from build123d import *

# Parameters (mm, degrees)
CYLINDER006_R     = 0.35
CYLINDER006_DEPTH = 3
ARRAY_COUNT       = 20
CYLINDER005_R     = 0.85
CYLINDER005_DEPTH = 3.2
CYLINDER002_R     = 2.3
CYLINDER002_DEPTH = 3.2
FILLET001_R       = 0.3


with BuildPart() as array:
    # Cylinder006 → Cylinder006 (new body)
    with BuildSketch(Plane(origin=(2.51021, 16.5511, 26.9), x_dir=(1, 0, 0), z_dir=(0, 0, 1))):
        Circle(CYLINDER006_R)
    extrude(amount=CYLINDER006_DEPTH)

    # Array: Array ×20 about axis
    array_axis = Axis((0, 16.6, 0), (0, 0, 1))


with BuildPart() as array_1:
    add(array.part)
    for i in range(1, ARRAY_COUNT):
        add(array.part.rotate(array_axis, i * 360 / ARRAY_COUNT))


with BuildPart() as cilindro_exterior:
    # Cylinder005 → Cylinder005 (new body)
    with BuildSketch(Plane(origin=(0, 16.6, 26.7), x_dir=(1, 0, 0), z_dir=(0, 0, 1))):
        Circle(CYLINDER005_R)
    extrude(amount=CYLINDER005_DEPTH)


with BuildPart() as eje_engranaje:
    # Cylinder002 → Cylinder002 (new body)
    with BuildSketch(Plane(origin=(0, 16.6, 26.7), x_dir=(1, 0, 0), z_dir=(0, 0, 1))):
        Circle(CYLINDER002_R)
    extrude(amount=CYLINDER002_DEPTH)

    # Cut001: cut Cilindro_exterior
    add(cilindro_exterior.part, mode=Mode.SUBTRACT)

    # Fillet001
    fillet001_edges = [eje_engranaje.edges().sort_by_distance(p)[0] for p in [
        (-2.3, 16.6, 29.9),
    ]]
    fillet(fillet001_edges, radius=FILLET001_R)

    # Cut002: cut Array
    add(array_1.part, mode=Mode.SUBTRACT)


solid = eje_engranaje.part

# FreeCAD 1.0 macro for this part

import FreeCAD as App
import Part
import Sketcher
from FreeCAD import Vector


def edges_at(feature, points):
    """Names of the edges that pass closest to the given points."""
    edges = feature.Shape.Edges
    near = lambda p: min(range(len(edges)), key=lambda i: edges[i].distToShape(Part.Vertex(*p))[0])
    return sorted({f"Edge{near(p) + 1}" for p in points})

doc = App.newDocument("Part")
body = doc.addObject("PartDesign::Body", "Body")

# Sketch on XY plane
sketch1 = doc.addObject("Sketcher::SketchObject", "Sketch")
body.addObject(sketch1)
sketch1.AttachmentSupport = (doc.XY_Plane, [""])
sketch1.MapMode = "FlatFace"
sketch1.AttachmentOffset = App.Placement(Vector(0, 0, 26.9), App.Rotation())
sketch1.addGeometry(Part.Circle(Vector(2.51, 16.55, 0), Vector(0, 0, 1), 0.35), False)
sketch1.addConstraint([
    Sketcher.Constraint("Diameter", 0, 0.7),
    Sketcher.Constraint("DistanceY", -1, 1, 0, 3, 16.5511),
    Sketcher.Constraint("DistanceX", -1, 1, 0, 3, 2.51021),
])
pad1 = doc.addObject("PartDesign::Pad", "Pad")
body.addObject(pad1)
pad1.Profile = sketch1
pad1.Length = 3
body2 = doc.addObject("PartDesign::Body", "Body001")
body2.AllowCompound = True
doc.recompute()

body2.BaseFeature = body
doc.recompute()

body3 = doc.addObject("PartDesign::Body", "Body002")
body3.BaseFeature = body
body3.Placement = App.Placement(Vector(5.129682, 0.812462, 0), App.Rotation(Vector(0, 0, 1), 18))
boolean = doc.addObject("PartDesign::Boolean", "Boolean")
body2.addObject(boolean)
boolean.Type = "Fuse"
boolean.addObjects([body3])
doc.recompute()

body4 = doc.addObject("PartDesign::Body", "Body003")
body4.BaseFeature = body
body4.Placement = App.Placement(Vector(9.757235, 3.170318, 0), App.Rotation(Vector(0, 0, 1), 36))
boolean2 = doc.addObject("PartDesign::Boolean", "Boolean001")
body2.addObject(boolean2)
boolean2.Type = "Fuse"
boolean2.addObjects([body4])
doc.recompute()

body5 = doc.addObject("PartDesign::Body", "Body004")
body5.BaseFeature = body
body5.Placement = App.Placement(Vector(13.429682, 6.842765, 0), App.Rotation(Vector(0, 0, 1), 54))
boolean3 = doc.addObject("PartDesign::Boolean", "Boolean002")
body2.addObject(boolean3)
boolean3.Type = "Fuse"
boolean3.addObjects([body5])
doc.recompute()

body6 = doc.addObject("PartDesign::Body", "Body005")
body6.BaseFeature = body
body6.Placement = App.Placement(Vector(15.787538, 11.470318, 0), App.Rotation(Vector(0, 0, 1), 72))
boolean4 = doc.addObject("PartDesign::Boolean", "Boolean003")
body2.addObject(boolean4)
boolean4.Type = "Fuse"
boolean4.addObjects([body6])
doc.recompute()

body7 = doc.addObject("PartDesign::Body", "Body006")
body7.BaseFeature = body
body7.Placement = App.Placement(Vector(16.6, 16.6, 0), App.Rotation(Vector(0, 0, 1), 90))
boolean5 = doc.addObject("PartDesign::Boolean", "Boolean004")
body2.addObject(boolean5)
boolean5.Type = "Fuse"
boolean5.addObjects([body7])
doc.recompute()

body8 = doc.addObject("PartDesign::Body", "Body007")
body8.BaseFeature = body
body8.Placement = App.Placement(Vector(15.787538, 21.729682, 0), App.Rotation(Vector(0, 0, 1), 108))
boolean6 = doc.addObject("PartDesign::Boolean", "Boolean005")
body2.addObject(boolean6)
boolean6.Type = "Fuse"
boolean6.addObjects([body8])
doc.recompute()

body9 = doc.addObject("PartDesign::Body", "Body008")
body9.BaseFeature = body
body9.Placement = App.Placement(Vector(13.429682, 26.357235, 0), App.Rotation(Vector(0, 0, 1), 126))
boolean7 = doc.addObject("PartDesign::Boolean", "Boolean006")
body2.addObject(boolean7)
boolean7.Type = "Fuse"
boolean7.addObjects([body9])
doc.recompute()

body10 = doc.addObject("PartDesign::Body", "Body009")
body10.BaseFeature = body
body10.Placement = App.Placement(Vector(9.757235, 30.029682, 0), App.Rotation(Vector(0, 0, 1), 144))
boolean8 = doc.addObject("PartDesign::Boolean", "Boolean007")
body2.addObject(boolean8)
boolean8.Type = "Fuse"
boolean8.addObjects([body10])
doc.recompute()

body11 = doc.addObject("PartDesign::Body", "Body010")
body11.BaseFeature = body
body11.Placement = App.Placement(Vector(5.129682, 32.387538, 0), App.Rotation(Vector(0, 0, 1), 162))
boolean9 = doc.addObject("PartDesign::Boolean", "Boolean008")
body2.addObject(boolean9)
boolean9.Type = "Fuse"
boolean9.addObjects([body11])
doc.recompute()

body12 = doc.addObject("PartDesign::Body", "Body011")
body12.BaseFeature = body
body12.Placement = App.Placement(Vector(0, 33.2, 0), App.Rotation(Vector(0, 0, 1), 180))
boolean10 = doc.addObject("PartDesign::Boolean", "Boolean009")
body2.addObject(boolean10)
boolean10.Type = "Fuse"
boolean10.addObjects([body12])
doc.recompute()

body13 = doc.addObject("PartDesign::Body", "Body012")
body13.BaseFeature = body
body13.Placement = App.Placement(Vector(-5.129682, 32.387538, 0), App.Rotation(Vector(0, 0, 1), 198))
boolean11 = doc.addObject("PartDesign::Boolean", "Boolean010")
body2.addObject(boolean11)
boolean11.Type = "Fuse"
boolean11.addObjects([body13])
doc.recompute()

body14 = doc.addObject("PartDesign::Body", "Body013")
body14.BaseFeature = body
body14.Placement = App.Placement(Vector(-9.757235, 30.029682, 0), App.Rotation(Vector(0, 0, 1), 216))
boolean12 = doc.addObject("PartDesign::Boolean", "Boolean011")
body2.addObject(boolean12)
boolean12.Type = "Fuse"
boolean12.addObjects([body14])
doc.recompute()

body15 = doc.addObject("PartDesign::Body", "Body014")
body15.BaseFeature = body
body15.Placement = App.Placement(Vector(-13.429682, 26.357235, 0), App.Rotation(Vector(0, 0, 1), 234))
boolean13 = doc.addObject("PartDesign::Boolean", "Boolean012")
body2.addObject(boolean13)
boolean13.Type = "Fuse"
boolean13.addObjects([body15])
doc.recompute()

body16 = doc.addObject("PartDesign::Body", "Body015")
body16.BaseFeature = body
body16.Placement = App.Placement(Vector(-15.787538, 21.729682, 0), App.Rotation(Vector(0, 0, 1), 252))
boolean14 = doc.addObject("PartDesign::Boolean", "Boolean013")
body2.addObject(boolean14)
boolean14.Type = "Fuse"
boolean14.addObjects([body16])
doc.recompute()

body17 = doc.addObject("PartDesign::Body", "Body016")
body17.BaseFeature = body
body17.Placement = App.Placement(Vector(-16.6, 16.6, 0), App.Rotation(Vector(0, 0, 1), 270))
boolean15 = doc.addObject("PartDesign::Boolean", "Boolean014")
body2.addObject(boolean15)
boolean15.Type = "Fuse"
boolean15.addObjects([body17])
doc.recompute()

body18 = doc.addObject("PartDesign::Body", "Body017")
body18.BaseFeature = body
body18.Placement = App.Placement(Vector(-15.787538, 11.470318, 0), App.Rotation(Vector(0, 0, 1), 288))
boolean16 = doc.addObject("PartDesign::Boolean", "Boolean015")
body2.addObject(boolean16)
boolean16.Type = "Fuse"
boolean16.addObjects([body18])
doc.recompute()

body19 = doc.addObject("PartDesign::Body", "Body018")
body19.BaseFeature = body
body19.Placement = App.Placement(Vector(-13.429682, 6.842765, 0), App.Rotation(Vector(0, 0, 1), 306))
boolean17 = doc.addObject("PartDesign::Boolean", "Boolean016")
body2.addObject(boolean17)
boolean17.Type = "Fuse"
boolean17.addObjects([body19])
doc.recompute()

body20 = doc.addObject("PartDesign::Body", "Body019")
body20.BaseFeature = body
body20.Placement = App.Placement(Vector(-9.757235, 3.170318, 0), App.Rotation(Vector(0, 0, 1), 324))
boolean18 = doc.addObject("PartDesign::Boolean", "Boolean017")
body2.addObject(boolean18)
boolean18.Type = "Fuse"
boolean18.addObjects([body20])
doc.recompute()

body.Placement = App.Placement(Vector(-5.129682, 0.812462, 0), App.Rotation(Vector(0, 0, 1), 342))
boolean19 = doc.addObject("PartDesign::Boolean", "Boolean018")
body2.addObject(boolean19)
boolean19.Type = "Fuse"
boolean19.addObjects([body])
body21 = doc.addObject("PartDesign::Body", "Body020")

# Sketch on XY plane
sketch2 = doc.addObject("Sketcher::SketchObject", "Sketch001")
body21.addObject(sketch2)
sketch2.AttachmentSupport = (doc.getObject("XY_Plane020"), [""])
sketch2.MapMode = "FlatFace"
sketch2.AttachmentOffset = App.Placement(Vector(0, 0, 26.7), App.Rotation())
sketch2.addGeometry(Part.Circle(Vector(0, 16.6, 0), Vector(0, 0, 1), 0.8), False)
sketch2.addConstraint([
    Sketcher.Constraint("PointOnObject", 0, 3, -2),
    Sketcher.Constraint("Diameter", 0, 1.7),
    Sketcher.Constraint("DistanceY", -1, 1, 0, 3, 16.6),
])
pad2 = doc.addObject("PartDesign::Pad", "Pad001")
body21.addObject(pad2)
pad2.Profile = sketch2
pad2.Length = 3.2
body22 = doc.addObject("PartDesign::Body", "Body021")

# Sketch on XY plane
sketch3 = doc.addObject("Sketcher::SketchObject", "Sketch002")
body22.addObject(sketch3)
sketch3.AttachmentSupport = (doc.getObject("XY_Plane021"), [""])
sketch3.MapMode = "FlatFace"
sketch3.AttachmentOffset = App.Placement(Vector(0, 0, 26.7), App.Rotation())
sketch3.addGeometry(Part.Circle(Vector(0, 16.6, 0), Vector(0, 0, 1), 2.3), False)
sketch3.addConstraint([
    Sketcher.Constraint("PointOnObject", 0, 3, -2),
    Sketcher.Constraint("Diameter", 0, 4.6),
    Sketcher.Constraint("DistanceY", -1, 1, 0, 3, 16.6),
])
pad3 = doc.addObject("PartDesign::Pad", "Pad002")
body22.addObject(pad3)
pad3.Profile = sketch3
pad3.Length = 3.2
doc.recompute()

boolean20 = doc.addObject("PartDesign::Boolean", "Boolean019")
body22.addObject(boolean20)
boolean20.Type = "Cut"
boolean20.addObjects([body21])
doc.recompute()

fillet = doc.addObject("PartDesign::Fillet", "Fillet")
body22.addObject(fillet)
fillet.Base = (boolean20, edges_at(boolean20, [(-2.3, 16.6, 29.9)]))
fillet.Radius = 0.3
doc.recompute()

boolean21 = doc.addObject("PartDesign::Boolean", "Boolean020")
body22.addObject(boolean21)
boolean21.Type = "Cut"
boolean21.addObjects([body2])

doc.recompute()
